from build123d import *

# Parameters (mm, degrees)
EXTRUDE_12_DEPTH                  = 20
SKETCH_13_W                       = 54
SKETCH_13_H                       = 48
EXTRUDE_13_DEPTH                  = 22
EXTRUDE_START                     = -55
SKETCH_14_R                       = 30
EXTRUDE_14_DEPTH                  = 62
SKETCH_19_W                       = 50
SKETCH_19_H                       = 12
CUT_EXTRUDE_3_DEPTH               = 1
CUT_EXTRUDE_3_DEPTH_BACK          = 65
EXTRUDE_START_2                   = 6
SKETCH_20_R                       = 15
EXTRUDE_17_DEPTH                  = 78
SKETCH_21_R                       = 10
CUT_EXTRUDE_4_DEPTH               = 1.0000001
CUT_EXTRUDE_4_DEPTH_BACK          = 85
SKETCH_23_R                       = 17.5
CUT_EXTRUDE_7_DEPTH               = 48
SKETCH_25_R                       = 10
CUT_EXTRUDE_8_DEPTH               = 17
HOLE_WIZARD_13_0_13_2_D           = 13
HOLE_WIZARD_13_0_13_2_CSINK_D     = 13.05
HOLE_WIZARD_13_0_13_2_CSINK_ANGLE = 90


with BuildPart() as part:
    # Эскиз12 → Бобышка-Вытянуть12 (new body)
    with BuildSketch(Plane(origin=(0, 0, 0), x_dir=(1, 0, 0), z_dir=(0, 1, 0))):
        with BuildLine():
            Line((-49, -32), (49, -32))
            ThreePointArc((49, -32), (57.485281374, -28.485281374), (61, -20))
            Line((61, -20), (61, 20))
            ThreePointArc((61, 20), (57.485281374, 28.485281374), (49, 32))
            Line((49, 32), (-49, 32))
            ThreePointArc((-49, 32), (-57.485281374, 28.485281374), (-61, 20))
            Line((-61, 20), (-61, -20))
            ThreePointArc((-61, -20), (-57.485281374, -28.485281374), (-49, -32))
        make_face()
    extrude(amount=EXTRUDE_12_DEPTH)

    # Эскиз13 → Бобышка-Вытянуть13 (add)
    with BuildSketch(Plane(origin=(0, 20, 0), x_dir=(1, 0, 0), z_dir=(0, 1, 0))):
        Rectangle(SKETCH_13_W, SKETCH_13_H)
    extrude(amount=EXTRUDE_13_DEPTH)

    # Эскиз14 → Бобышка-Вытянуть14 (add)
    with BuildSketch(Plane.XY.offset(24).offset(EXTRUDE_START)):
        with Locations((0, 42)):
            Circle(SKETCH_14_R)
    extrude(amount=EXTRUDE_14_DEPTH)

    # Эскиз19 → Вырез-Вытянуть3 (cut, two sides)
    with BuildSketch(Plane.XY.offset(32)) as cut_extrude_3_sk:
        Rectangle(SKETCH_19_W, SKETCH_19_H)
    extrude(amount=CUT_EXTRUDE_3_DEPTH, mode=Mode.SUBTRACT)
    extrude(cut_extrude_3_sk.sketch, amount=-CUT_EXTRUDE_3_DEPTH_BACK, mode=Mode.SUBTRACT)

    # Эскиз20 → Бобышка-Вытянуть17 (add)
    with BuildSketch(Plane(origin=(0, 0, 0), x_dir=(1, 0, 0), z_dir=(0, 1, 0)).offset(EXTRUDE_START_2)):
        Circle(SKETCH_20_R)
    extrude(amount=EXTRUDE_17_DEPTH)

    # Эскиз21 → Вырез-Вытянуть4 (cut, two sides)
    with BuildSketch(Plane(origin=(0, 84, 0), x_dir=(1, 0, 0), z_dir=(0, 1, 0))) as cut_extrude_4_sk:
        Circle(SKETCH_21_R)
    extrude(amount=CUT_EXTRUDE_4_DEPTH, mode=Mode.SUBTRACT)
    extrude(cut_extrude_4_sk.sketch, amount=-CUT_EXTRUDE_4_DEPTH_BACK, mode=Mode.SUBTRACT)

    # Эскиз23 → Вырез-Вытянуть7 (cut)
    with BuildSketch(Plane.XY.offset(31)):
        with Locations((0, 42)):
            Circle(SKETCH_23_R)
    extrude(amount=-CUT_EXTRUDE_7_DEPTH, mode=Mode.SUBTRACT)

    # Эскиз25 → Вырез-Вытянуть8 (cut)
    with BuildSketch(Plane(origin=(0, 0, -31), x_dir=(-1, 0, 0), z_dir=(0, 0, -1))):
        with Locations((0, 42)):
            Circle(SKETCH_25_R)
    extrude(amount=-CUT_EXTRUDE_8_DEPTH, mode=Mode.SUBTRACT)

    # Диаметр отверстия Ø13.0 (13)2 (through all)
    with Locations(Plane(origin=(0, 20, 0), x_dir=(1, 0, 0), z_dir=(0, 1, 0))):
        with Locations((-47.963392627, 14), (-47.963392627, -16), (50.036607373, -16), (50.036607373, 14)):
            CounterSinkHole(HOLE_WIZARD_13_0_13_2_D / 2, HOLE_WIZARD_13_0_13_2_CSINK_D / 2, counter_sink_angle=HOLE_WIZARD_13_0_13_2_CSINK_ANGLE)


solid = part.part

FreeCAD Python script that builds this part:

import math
import FreeCAD as App
import Part
import Sketcher
from FreeCAD import Vector

doc = App.newDocument("Part")
body = doc.addObject("PartDesign::Body", "Body")

# Sketch on XZ plane
sketch1 = body.newObject("Sketcher::SketchObject", "Sketch")
sketch1.AttachmentSupport = (doc.getObject("XZ_Plane"), [""])
sketch1.MapMode = "FlatFace"
sketch1.addGeometry(Part.LineSegment(Vector(-49, 32, 0), Vector(49, 32, 0)), False)
sketch1.addGeometry(Part.ArcOfCircle(Part.Circle(Vector(49, 20, 0), Vector(0, 0, 1), 12), math.radians(0), math.radians(90)), False)
sketch1.addGeometry(Part.LineSegment(Vector(61, 20, 0), Vector(61, -20, 0)), False)
sketch1.addGeometry(Part.ArcOfCircle(Part.Circle(Vector(49, -20, 0), Vector(0, 0, 1), 12), math.radians(-90), math.radians(0)), False)
sketch1.addGeometry(Part.LineSegment(Vector(49, -32, 0), Vector(-49, -32, 0)), False)
sketch1.addGeometry(Part.ArcOfCircle(Part.Circle(Vector(-49, -20, 0), Vector(0, 0, 1), 12), math.radians(-180), math.radians(-90)), False)
sketch1.addGeometry(Part.LineSegment(Vector(-61, -20, 0), Vector(-61, 20, 0)), False)
sketch1.addGeometry(Part.ArcOfCircle(Part.Circle(Vector(-49, 20, 0), Vector(0, 0, 1), 12), math.radians(90), math.radians(180)), False)
sketch1.addConstraint(Sketcher.Constraint("Tangent", 0, 2, 1, 2))
sketch1.addConstraint(Sketcher.Constraint("Tangent", 1, 1, 2, 1))
sketch1.addConstraint(Sketcher.Constraint("Tangent", 2, 2, 3, 2))
sketch1.addConstraint(Sketcher.Constraint("Tangent", 3, 1, 4, 1))
sketch1.addConstraint(Sketcher.Constraint("Tangent", 4, 2, 5, 2))
sketch1.addConstraint(Sketcher.Constraint("Tangent", 5, 1, 6, 1))
sketch1.addConstraint(Sketcher.Constraint("Tangent", 6, 2, 7, 2))
sketch1.addConstraint(Sketcher.Constraint("Tangent", 7, 1, 0, 1))
sketch1.addConstraint(Sketcher.Constraint("Horizontal", 0))
sketch1.addConstraint(Sketcher.Constraint("Vertical", 2))
sketch1.addConstraint(Sketcher.Constraint("Horizontal", 4))
sketch1.addConstraint(Sketcher.Constraint("Vertical", 6))
sketch1.addConstraint(Sketcher.Constraint("Equal", 1, 3))
sketch1.addConstraint(Sketcher.Constraint("Equal", 3, 5))
sketch1.addConstraint(Sketcher.Constraint("Equal", 5, 7))
sketch1.addConstraint(Sketcher.Constraint("Symmetric", 1, 3, 5, 3, -1, 1))
sketch1.addConstraint(Sketcher.Constraint("Radius", 1, 12.0))
sketch1.addConstraint(Sketcher.Constraint("DistanceX", 0, 1, 0, 2, 98.0))
sketch1.addConstraint(Sketcher.Constraint("DistanceY", 2, 2, 2, 1, 40.0))
pad1 = body.newObject("PartDesign::Pad", "Pad")
pad1.Profile = sketch1
pad1.Length = 20
pad1.Reversed = True

# Sketch on XZ plane
sketch2 = body.newObject("Sketcher::SketchObject", "Sketch001")
sketch2.AttachmentSupport = (doc.getObject("XZ_Plane"), [""])
sketch2.MapMode = "FlatFace"
sketch2.AttachmentOffset = App.Placement(Vector(0, 0, -20), App.Rotation())
sketch2.addGeometry(Part.LineSegment(Vector(-27, -24, 0), Vector(-27, 24, 0)), False)
sketch2.addGeometry(Part.LineSegment(Vector(-27, 24, 0), Vector(27, 24, 0)), False)
sketch2.addGeometry(Part.LineSegment(Vector(27, 24, 0), Vector(27, -24, 0)), False)
sketch2.addGeometry(Part.LineSegment(Vector(27, -24, 0), Vector(-27, -24, 0)), False)
sketch2.addConstraint(Sketcher.Constraint("Coincident", 0, 2, 1, 1))
sketch2.addConstraint(Sketcher.Constraint("Coincident", 1, 2, 2, 1))
sketch2.addConstraint(Sketcher.Constraint("Coincident", 2, 2, 3, 1))
sketch2.addConstraint(Sketcher.Constraint("Coincident", 3, 2, 0, 1))
sketch2.addConstraint(Sketcher.Constraint("Vertical", 0))
sketch2.addConstraint(Sketcher.Constraint("Horizontal", 1))
sketch2.addConstraint(Sketcher.Constraint("Vertical", 2))
sketch2.addConstraint(Sketcher.Constraint("Horizontal", 3))
sketch2.addConstraint(Sketcher.Constraint("Symmetric", 0, 2, 2, 2, -1, 1))
sketch2.addConstraint(Sketcher.Constraint("DistanceX", 1, 1, 1, 2, 54.0))
sketch2.addConstraint(Sketcher.Constraint("DistanceY", 0, 1, 0, 2, 48.0))
pad2 = body.newObject("PartDesign::Pad", "Pad001")
pad2.Profile = sketch2
pad2.Length = 22
pad2.Reversed = True

# Sketch on XY plane
sketch3 = body.newObject("Sketcher::SketchObject", "Sketch002")
sketch3.AttachmentSupport = (doc.getObject("XY_Plane"), [""])
sketch3.MapMode = "FlatFace"
sketch3.AttachmentOffset = App.Placement(Vector(0, 0, -31), App.Rotation())
sketch3.addGeometry(Part.Circle(Vector(0, 42, 0), Vector(0, 0, 1), 30), False)
sketch3.addConstraint(Sketcher.Constraint("PointOnObject", 0, 3, -2))
sketch3.addConstraint(Sketcher.Constraint("Diameter", 0, 60.0))
sketch3.addConstraint(Sketcher.Constraint("DistanceY", -1, 1, 0, 3, 42.0))
pad3 = body.newObject("PartDesign::Pad", "Pad002")
pad3.Profile = sketch3
pad3.Length = 62

# Sketch on XY plane
sketch4 = body.newObject("Sketcher::SketchObject", "Sketch003")
sketch4.AttachmentSupport = (doc.getObject("XY_Plane"), [""])
sketch4.MapMode = "FlatFace"
sketch4.AttachmentOffset = App.Placement(Vector(0, 0, 32), App.Rotation())
sketch4.addGeometry(Part.LineSegment(Vector(-25, 6, 0), Vector(-25, -6, 0)), False)
sketch4.addGeometry(Part.LineSegment(Vector(-25, -6, 0), Vector(25, -6, 0)), False)
sketch4.addGeometry(Part.LineSegment(Vector(25, -6, 0), Vector(25, 6, 0)), False)
sketch4.addGeometry(Part.LineSegment(Vector(25, 6, 0), Vector(-25, 6, 0)), False)
sketch4.addConstraint(Sketcher.Constraint("Coincident", 0, 2, 1, 1))
sketch4.addConstraint(Sketcher.Constraint("Coincident", 1, 2, 2, 1))
sketch4.addConstraint(Sketcher.Constraint("Coincident", 2, 2, 3, 1))
sketch4.addConstraint(Sketcher.Constraint("Coincident", 3, 2, 0, 1))
sketch4.addConstraint(Sketcher.Constraint("Vertical", 0))
sketch4.addConstraint(Sketcher.Constraint("Horizontal", 1))
sketch4.addConstraint(Sketcher.Constraint("Vertical", 2))
sketch4.addConstraint(Sketcher.Constraint("Horizontal", 3))
sketch4.addConstraint(Sketcher.Constraint("Symmetric", 0, 2, 2, 2, -1, 1))
sketch4.addConstraint(Sketcher.Constraint("DistanceX", 1, 1, 1, 2, 50.0))
sketch4.addConstraint(Sketcher.Constraint("DistanceY", 0, 2, 0, 1, 12.0))
pocket1 = body.newObject("PartDesign::Pocket", "Pocket")
pocket1.Profile = sketch4
pocket1.Type = "ThroughAll"
pocket1.Midplane = True

# Sketch on XZ plane
sketch5 = body.newObject("Sketcher::SketchObject", "Sketch004")
sketch5.AttachmentSupport = (doc.getObject("XZ_Plane"), [""])
sketch5.MapMode = "FlatFace"
sketch5.AttachmentOffset = App.Placement(Vector(0, 0, -6), App.Rotation())
sketch5.addGeometry(Part.Circle(Vector(0, 0, 0), Vector(0, 0, 1), 15), False)
sketch5.addConstraint(Sketcher.Constraint("Coincident", 0, 3, -1, 1))
sketch5.addConstraint(Sketcher.Constraint("Diameter", 0, 30.0))
pad4 = body.newObject("PartDesign::Pad", "Pad003")
pad4.Profile = sketch5
pad4.Length = 78
pad4.Reversed = True

# Sketch on XZ plane
sketch6 = body.newObject("Sketcher::SketchObject", "Sketch005")
sketch6.AttachmentSupport = (doc.getObject("XZ_Plane"), [""])
sketch6.MapMode = "FlatFace"
sketch6.AttachmentOffset = App.Placement(Vector(0, 0, -84), App.Rotation())
sketch6.addGeometry(Part.Circle(Vector(0, 0, 0), Vector(0, 0, 1), 10), False)
sketch6.addConstraint(Sketcher.Constraint("Coincident", 0, 3, -1, 1))
sketch6.addConstraint(Sketcher.Constraint("Diameter", 0, 20.0))
pocket2 = body.newObject("PartDesign::Pocket", "Pocket001")
pocket2.Profile = sketch6
pocket2.Type = "ThroughAll"
pocket2.Midplane = True

# Sketch on XY plane
sketch7 = body.newObject("Sketcher::SketchObject", "Sketch006")
sketch7.AttachmentSupport = (doc.getObject("XY_Plane"), [""])
sketch7.MapMode = "FlatFace"
sketch7.AttachmentOffset = App.Placement(Vector(0, 0, 31), App.Rotation())
sketch7.addGeometry(Part.Circle(Vector(0, 42, 0), Vector(0, 0, 1), 17.5), False)
sketch7.addConstraint(Sketcher.Constraint("PointOnObject", 0, 3, -2))
sketch7.addConstraint(Sketcher.Constraint("Diameter", 0, 35.0))
sketch7.addConstraint(Sketcher.Constraint("DistanceY", -1, 1, 0, 3, 42.0))
pocket3 = body.newObject("PartDesign::Pocket", "Pocket002")
pocket3.Profile = sketch7
pocket3.Length = 48

# Sketch on XY plane
sketch8 = body.newObject("Sketcher::SketchObject", "Sketch007")
sketch8.AttachmentSupport = (doc.getObject("XY_Plane"), [""])
sketch8.MapMode = "FlatFace"
sketch8.AttachmentOffset = App.Placement(Vector(0, 0, -31), App.Rotation())
sketch8.addGeometry(Part.Circle(Vector(0, 42, 0), Vector(0, 0, 1), 10), False)
sketch8.addConstraint(Sketcher.Constraint("PointOnObject", 0, 3, -2))
sketch8.addConstraint(Sketcher.Constraint("Diameter", 0, 20.0))
sketch8.addConstraint(Sketcher.Constraint("DistanceY", -1, 1, 0, 3, 42.0))
pocket4 = body.newObject("PartDesign::Pocket", "Pocket003")
pocket4.Profile = sketch8
pocket4.Length = 17
pocket4.Reversed = True

# Sketch on XZ plane
sketch9 = body.newObject("Sketcher::SketchObject", "Sketch008")
sketch9.AttachmentSupport = (doc.getObject("XZ_Plane"), [""])
sketch9.MapMode = "FlatFace"
sketch9.AttachmentOffset = App.Placement(Vector(0, 0, -20), App.Rotation())
sketch9.addGeometry(Part.Circle(Vector(-47.963393, -14, 0), Vector(0, 0, 1), 6.5), False)
sketch9.addGeometry(Part.Circle(Vector(-47.963393, 16, 0), Vector(0, 0, 1), 6.5), False)
sketch9.addGeometry(Part.Circle(Vector(50.036607, 16, 0), Vector(0, 0, 1), 6.5), False)
sketch9.addGeometry(Part.Circle(Vector(50.036607, -14, 0), Vector(0, 0, 1), 6.5), False)
sketch9.addConstraint(Sketcher.Constraint("Equal", 0, 1))
sketch9.addConstraint(Sketcher.Constraint("Equal", 1, 2))
sketch9.addConstraint(Sketcher.Constraint("Equal", 2, 3))
sketch9.addConstraint(Sketcher.Constraint("Horizontal", 1, 3, 2, 3))
sketch9.addConstraint(Sketcher.Constraint("Horizontal", 0, 3, 3, 3))
sketch9.addConstraint(Sketcher.Constraint("Vertical", 0, 3, 1, 3))
sketch9.addConstraint(Sketcher.Constraint("Vertical", 2, 3, 3, 3))
sketch9.addConstraint(Sketcher.Constraint("Diameter", 0, 13.0))
sketch9.addConstraint(Sketcher.Constraint("DistanceY", 0, 3, -1, 1, 14.0))
sketch9.addConstraint(Sketcher.Constraint("DistanceY", -1, 1, 1, 3, 16.0))
sketch9.addConstraint(Sketcher.Constraint("DistanceX", 1, 3, 2, 3, 98.0))
sketch9.addConstraint(Sketcher.Constraint("DistanceX", 0, 3, -1, 1, 47.963393))
doc.recompute()
hole = body.newObject("PartDesign::Hole", "Hole")
hole.Profile = sketch9
hole.ThreadType = "None"
hole.Diameter = 13
hole.DepthType = "ThroughAll"
hole.HoleCutType = "Countersink"
hole.HoleCutDiameter = 13.05
hole.HoleCutCountersinkAngle = 90
hole.Reversed = True

doc.recompute()
